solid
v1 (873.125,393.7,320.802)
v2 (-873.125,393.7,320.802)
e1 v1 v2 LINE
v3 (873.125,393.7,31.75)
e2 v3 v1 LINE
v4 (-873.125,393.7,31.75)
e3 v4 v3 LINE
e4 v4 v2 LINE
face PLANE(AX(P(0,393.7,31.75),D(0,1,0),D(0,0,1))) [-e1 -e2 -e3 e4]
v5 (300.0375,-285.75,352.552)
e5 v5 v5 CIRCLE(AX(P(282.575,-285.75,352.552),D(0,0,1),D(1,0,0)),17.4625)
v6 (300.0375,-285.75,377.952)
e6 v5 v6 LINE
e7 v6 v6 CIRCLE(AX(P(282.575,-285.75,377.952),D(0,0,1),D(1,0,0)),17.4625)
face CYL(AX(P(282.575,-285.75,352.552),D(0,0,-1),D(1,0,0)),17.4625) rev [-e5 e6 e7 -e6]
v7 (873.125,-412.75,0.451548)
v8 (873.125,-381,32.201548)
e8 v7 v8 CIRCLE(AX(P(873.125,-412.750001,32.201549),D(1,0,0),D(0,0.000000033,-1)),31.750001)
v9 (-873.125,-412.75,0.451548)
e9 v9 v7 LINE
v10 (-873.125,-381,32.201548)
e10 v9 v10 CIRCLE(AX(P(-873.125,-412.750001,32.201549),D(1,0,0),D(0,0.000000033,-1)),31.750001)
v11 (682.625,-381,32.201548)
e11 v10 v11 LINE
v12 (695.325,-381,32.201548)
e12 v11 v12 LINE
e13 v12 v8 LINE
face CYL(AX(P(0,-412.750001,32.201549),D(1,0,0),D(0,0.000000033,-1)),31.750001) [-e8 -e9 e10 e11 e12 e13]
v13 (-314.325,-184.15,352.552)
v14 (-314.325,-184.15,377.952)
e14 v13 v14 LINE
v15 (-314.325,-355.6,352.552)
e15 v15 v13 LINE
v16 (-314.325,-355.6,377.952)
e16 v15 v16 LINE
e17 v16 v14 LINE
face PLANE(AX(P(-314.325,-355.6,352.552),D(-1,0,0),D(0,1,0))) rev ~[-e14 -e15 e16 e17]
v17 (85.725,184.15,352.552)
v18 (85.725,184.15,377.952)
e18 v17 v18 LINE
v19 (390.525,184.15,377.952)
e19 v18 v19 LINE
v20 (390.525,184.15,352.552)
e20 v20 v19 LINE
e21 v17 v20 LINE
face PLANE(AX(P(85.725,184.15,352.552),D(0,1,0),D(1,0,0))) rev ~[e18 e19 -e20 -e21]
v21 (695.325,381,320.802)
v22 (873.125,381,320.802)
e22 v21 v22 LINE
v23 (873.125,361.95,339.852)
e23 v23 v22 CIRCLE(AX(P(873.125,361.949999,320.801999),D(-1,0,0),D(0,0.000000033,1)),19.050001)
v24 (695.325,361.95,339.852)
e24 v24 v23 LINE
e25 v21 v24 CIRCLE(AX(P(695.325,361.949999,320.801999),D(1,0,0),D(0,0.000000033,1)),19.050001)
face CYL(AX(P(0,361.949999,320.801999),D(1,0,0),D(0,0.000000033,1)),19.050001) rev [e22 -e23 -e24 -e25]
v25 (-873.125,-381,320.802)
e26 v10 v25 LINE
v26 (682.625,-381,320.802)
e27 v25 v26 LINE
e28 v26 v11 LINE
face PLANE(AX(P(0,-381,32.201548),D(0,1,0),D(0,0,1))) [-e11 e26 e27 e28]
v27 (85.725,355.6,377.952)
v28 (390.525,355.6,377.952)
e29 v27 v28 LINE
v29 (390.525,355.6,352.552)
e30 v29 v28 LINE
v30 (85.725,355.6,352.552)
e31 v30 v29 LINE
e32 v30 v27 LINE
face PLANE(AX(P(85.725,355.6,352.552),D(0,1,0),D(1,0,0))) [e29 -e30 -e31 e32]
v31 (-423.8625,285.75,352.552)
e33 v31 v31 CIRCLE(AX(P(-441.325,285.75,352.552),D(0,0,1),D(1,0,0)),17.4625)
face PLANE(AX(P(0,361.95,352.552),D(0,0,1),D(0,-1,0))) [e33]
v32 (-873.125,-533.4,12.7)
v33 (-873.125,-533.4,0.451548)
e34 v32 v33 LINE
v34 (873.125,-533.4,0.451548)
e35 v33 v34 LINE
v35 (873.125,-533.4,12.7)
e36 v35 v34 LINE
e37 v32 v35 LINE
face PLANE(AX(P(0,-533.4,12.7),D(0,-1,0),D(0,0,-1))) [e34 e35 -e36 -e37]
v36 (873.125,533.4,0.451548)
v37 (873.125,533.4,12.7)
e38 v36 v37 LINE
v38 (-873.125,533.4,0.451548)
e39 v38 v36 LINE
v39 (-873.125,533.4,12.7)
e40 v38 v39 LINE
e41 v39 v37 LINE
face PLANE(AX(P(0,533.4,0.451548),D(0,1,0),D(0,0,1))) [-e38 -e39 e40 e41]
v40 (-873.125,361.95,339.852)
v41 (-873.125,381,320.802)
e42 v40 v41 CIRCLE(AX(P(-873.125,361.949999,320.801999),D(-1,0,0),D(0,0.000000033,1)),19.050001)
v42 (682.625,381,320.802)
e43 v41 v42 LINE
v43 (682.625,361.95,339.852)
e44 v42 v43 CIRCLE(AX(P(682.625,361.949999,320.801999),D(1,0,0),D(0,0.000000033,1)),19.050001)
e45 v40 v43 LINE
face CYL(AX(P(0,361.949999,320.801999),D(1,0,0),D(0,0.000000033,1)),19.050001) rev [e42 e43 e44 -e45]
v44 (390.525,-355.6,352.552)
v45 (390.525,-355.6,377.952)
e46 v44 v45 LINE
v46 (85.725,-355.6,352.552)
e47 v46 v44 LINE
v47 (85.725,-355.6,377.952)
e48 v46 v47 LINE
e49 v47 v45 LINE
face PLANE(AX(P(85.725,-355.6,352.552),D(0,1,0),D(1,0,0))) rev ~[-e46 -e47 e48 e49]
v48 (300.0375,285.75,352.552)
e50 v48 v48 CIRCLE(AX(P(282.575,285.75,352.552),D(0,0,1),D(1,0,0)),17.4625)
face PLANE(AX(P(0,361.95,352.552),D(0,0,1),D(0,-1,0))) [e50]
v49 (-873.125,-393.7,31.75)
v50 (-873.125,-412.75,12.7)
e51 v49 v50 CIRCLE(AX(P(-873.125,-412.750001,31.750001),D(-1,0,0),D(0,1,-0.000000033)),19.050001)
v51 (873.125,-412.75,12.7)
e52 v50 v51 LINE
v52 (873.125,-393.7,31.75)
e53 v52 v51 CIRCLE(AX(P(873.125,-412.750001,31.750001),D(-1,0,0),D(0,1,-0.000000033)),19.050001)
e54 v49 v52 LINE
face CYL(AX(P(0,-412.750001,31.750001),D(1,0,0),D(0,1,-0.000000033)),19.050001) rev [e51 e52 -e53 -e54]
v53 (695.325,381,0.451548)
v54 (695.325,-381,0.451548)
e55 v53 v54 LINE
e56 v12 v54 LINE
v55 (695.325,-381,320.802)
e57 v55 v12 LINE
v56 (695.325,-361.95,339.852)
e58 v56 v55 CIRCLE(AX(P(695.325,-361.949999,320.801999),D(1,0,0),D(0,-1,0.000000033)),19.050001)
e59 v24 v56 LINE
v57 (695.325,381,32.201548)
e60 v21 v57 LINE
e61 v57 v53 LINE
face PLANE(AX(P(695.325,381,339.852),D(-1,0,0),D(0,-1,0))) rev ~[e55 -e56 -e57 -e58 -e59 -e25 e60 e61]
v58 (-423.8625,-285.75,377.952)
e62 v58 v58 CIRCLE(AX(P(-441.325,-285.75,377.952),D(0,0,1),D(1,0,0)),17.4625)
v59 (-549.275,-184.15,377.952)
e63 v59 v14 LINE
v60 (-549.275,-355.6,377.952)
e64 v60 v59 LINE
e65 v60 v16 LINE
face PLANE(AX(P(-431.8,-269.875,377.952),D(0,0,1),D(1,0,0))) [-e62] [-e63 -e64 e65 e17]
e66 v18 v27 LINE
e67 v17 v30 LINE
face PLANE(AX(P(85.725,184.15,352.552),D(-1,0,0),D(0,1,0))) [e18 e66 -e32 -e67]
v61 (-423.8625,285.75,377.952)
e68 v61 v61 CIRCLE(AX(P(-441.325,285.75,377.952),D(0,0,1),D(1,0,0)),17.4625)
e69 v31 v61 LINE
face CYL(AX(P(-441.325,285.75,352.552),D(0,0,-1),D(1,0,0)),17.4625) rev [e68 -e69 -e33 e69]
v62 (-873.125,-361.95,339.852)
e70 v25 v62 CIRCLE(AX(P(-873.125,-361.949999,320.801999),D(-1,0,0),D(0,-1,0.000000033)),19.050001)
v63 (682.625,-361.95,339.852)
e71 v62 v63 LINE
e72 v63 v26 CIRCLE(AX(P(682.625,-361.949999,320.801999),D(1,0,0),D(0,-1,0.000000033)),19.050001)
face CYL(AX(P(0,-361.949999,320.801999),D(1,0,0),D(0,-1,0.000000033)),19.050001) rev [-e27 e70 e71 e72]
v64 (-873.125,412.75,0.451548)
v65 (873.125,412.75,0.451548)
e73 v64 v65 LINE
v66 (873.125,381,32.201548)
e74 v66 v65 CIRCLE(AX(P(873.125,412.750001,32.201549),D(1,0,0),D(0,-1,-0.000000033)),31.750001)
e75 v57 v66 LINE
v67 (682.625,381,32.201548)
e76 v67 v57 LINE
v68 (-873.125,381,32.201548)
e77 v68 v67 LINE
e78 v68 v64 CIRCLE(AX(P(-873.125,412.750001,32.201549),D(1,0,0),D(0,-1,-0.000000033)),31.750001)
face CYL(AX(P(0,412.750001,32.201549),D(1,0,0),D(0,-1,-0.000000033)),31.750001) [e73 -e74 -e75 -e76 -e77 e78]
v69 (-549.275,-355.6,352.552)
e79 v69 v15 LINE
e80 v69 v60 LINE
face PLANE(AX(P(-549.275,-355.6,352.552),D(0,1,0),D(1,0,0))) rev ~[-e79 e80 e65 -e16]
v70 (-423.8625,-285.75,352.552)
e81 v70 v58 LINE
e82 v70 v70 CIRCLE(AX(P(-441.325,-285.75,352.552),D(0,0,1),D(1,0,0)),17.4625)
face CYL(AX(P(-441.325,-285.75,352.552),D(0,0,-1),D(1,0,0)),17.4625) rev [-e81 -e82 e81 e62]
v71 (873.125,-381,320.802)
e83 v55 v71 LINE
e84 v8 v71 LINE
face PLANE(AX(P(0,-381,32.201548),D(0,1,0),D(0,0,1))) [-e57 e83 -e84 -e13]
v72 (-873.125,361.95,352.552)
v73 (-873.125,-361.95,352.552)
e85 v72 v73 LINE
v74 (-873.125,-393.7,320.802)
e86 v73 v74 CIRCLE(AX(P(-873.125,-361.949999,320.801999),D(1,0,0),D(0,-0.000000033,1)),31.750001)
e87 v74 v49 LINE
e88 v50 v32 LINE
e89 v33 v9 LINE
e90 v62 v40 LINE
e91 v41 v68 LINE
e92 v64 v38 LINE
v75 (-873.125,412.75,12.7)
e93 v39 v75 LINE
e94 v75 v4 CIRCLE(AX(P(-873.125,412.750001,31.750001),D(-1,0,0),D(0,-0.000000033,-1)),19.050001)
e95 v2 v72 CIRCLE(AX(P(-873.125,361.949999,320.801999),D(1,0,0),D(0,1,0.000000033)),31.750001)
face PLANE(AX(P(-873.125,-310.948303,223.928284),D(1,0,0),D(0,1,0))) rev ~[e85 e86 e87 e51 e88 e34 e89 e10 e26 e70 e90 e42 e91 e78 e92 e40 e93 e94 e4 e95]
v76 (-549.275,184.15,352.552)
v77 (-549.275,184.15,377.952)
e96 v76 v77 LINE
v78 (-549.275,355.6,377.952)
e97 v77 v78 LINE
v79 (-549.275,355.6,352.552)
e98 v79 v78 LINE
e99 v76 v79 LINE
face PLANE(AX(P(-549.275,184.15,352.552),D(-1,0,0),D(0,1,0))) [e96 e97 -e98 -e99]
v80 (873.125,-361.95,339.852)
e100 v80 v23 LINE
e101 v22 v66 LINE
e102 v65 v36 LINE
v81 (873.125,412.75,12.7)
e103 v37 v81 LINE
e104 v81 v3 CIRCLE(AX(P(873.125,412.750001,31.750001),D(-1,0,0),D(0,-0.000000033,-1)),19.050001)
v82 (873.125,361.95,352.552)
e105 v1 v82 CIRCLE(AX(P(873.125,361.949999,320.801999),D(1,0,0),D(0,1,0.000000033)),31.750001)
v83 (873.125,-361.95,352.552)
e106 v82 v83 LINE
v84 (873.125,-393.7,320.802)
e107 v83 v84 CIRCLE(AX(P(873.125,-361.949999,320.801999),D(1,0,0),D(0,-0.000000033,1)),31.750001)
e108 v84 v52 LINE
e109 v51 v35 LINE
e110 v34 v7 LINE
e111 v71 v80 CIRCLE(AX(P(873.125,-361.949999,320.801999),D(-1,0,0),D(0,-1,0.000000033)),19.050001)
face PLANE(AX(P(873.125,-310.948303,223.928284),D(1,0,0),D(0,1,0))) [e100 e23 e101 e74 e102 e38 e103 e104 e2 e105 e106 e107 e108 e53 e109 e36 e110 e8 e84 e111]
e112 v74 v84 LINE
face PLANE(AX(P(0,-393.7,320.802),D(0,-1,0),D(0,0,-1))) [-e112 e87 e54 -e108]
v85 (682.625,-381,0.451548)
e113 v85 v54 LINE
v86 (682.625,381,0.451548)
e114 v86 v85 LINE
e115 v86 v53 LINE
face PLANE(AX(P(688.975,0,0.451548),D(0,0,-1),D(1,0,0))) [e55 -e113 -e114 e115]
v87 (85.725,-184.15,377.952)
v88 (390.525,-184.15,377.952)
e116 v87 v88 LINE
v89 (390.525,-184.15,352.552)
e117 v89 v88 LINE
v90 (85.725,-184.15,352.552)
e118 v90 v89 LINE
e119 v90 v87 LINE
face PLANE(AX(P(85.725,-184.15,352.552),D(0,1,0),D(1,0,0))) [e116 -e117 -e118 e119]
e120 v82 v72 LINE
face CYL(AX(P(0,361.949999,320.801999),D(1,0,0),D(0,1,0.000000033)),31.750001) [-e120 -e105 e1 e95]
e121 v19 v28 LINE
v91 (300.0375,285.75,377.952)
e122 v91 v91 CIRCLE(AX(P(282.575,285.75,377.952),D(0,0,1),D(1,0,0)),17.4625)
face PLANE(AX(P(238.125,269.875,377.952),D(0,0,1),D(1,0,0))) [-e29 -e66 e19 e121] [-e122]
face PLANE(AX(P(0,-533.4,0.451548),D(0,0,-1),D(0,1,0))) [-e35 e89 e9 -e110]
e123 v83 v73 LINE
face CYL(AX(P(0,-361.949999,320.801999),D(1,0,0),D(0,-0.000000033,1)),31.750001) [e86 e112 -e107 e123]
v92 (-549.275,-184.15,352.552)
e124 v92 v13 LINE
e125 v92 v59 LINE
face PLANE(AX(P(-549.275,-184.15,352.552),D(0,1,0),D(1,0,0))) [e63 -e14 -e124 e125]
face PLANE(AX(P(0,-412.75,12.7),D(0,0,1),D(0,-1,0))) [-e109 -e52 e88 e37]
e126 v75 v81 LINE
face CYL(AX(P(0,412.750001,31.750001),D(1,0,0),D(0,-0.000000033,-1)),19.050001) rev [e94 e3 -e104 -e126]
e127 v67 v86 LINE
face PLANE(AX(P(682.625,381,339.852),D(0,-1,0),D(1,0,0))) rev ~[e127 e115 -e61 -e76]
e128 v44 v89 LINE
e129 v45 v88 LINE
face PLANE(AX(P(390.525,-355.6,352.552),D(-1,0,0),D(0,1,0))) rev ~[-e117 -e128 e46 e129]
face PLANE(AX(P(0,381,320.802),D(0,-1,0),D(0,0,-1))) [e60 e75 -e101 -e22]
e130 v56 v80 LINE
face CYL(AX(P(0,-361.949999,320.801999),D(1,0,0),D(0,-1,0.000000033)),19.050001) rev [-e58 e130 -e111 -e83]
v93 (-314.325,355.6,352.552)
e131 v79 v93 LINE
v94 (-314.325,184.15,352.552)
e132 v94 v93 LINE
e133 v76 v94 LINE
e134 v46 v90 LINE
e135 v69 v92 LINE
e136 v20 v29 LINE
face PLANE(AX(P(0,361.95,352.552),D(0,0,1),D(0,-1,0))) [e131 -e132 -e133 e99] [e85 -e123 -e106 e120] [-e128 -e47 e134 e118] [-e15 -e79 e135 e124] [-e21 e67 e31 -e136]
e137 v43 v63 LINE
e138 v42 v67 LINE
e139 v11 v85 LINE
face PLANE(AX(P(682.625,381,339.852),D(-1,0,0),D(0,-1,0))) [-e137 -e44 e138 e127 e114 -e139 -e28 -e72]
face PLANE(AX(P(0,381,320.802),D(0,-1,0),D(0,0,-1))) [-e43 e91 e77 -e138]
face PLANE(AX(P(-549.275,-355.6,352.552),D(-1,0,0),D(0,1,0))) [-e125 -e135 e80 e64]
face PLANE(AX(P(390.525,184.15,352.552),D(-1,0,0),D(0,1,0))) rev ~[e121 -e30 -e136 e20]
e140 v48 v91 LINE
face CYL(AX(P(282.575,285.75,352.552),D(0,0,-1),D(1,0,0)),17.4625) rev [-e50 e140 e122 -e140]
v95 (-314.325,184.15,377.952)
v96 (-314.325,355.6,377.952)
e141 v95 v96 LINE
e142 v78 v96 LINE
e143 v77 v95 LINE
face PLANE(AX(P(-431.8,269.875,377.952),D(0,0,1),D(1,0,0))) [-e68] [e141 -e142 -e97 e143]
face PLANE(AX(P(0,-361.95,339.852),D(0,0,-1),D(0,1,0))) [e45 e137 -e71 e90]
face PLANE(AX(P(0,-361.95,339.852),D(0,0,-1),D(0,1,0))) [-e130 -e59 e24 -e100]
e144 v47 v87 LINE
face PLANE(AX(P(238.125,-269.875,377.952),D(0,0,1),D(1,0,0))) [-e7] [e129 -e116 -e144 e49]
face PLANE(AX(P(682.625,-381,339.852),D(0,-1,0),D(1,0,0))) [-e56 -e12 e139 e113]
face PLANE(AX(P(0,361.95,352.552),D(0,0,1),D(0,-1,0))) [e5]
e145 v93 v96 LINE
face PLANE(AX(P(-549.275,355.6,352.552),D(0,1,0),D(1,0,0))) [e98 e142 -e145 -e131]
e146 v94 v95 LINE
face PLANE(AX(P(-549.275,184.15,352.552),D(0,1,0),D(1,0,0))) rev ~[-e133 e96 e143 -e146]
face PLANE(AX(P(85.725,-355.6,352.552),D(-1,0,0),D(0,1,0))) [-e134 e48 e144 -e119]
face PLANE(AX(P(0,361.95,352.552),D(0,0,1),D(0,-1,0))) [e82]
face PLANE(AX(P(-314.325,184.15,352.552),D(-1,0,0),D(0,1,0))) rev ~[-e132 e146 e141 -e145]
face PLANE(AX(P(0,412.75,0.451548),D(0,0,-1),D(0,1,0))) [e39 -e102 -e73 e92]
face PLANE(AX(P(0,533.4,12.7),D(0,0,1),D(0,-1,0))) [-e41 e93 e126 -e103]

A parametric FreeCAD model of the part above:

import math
import FreeCAD as App
import Part
import Sketcher
Q = App.Units.Quantity


def add_polygon(sketch, points):
    """Adds a closed chain of lines whose ends are joined by coincident constraints."""
    first, n = sketch.GeometryCount, len(points)
    for a, b in zip(points, points[1:] + points[:1]):
        sketch.addGeometry(Part.LineSegment(App.Vector(*a, 0), App.Vector(*b, 0)), False)
    for i in range(n):
        sketch.addConstraint(Sketcher.Constraint("Coincident", first + i, 2, first + (i + 1) % n, 1))

doc = App.newDocument("Part")
body = doc.addObject("PartDesign::Body", "Body")

# Sketch on YZ plane
sketch1 = body.newObject("Sketcher::SketchObject", "Sketch")
sketch1.AttachmentSupport = (doc.getObject("YZ_Plane"), [""])
sketch1.MapMode = "FlatFace"
sketch1.addGeometry(Part.ArcOfCircle(Part.Circle(App.Vector(-362, 321, 0), App.Vector(0, 0, 1), 32), math.radians(90), math.radians(180)), False)
sketch1.addGeometry(Part.LineSegment(App.Vector(-394, 321, 0), App.Vector(-394, 32, 0)), False)
sketch1.addGeometry(Part.ArcOfCircle(Part.Circle(App.Vector(-413, 32, 0), App.Vector(0, 0, 1), 19), math.radians(-90), math.radians(0)), False)
sketch1.addGeometry(Part.LineSegment(App.Vector(-413, 13, 0), App.Vector(-533, 13, 0)), False)
sketch1.addGeometry(Part.LineSegment(App.Vector(-533, 13, 0), App.Vector(-533, 0, 0)), False)
sketch1.addGeometry(Part.LineSegment(App.Vector(-533, 0, 0), App.Vector(-413, 0, 0)), False)
sketch1.addGeometry(Part.ArcOfCircle(Part.Circle(App.Vector(-413, 32, 0), App.Vector(0, 0, 1), 32), math.radians(-90), math.radians(0)), False)
sketch1.addGeometry(Part.LineSegment(App.Vector(-381, 32, 0), App.Vector(-381, 321, 0)), False)
sketch1.addGeometry(Part.ArcOfCircle(Part.Circle(App.Vector(-362, 321, 0), App.Vector(0, 0, 1), 19), math.radians(90), math.radians(180)), False)
sketch1.addGeometry(Part.LineSegment(App.Vector(-362, 340, 0), App.Vector(362, 340, 0)), False)
sketch1.addGeometry(Part.ArcOfCircle(Part.Circle(App.Vector(362, 321, 0), App.Vector(0, 0, 1), 19), math.radians(0), math.radians(90)), False)
sketch1.addGeometry(Part.LineSegment(App.Vector(381, 321, 0), App.Vector(381, 32, 0)), False)
sketch1.addGeometry(Part.ArcOfCircle(Part.Circle(App.Vector(413, 32, 0), App.Vector(0, 0, 1), 32), math.radians(-180), math.radians(-90)), False)
sketch1.addGeometry(Part.LineSegment(App.Vector(413, 0, 0), App.Vector(533, 0, 0)), False)
sketch1.addGeometry(Part.LineSegment(App.Vector(533, 0, 0), App.Vector(533, 13, 0)), False)
sketch1.addGeometry(Part.LineSegment(App.Vector(533, 13, 0), App.Vector(413, 13, 0)), False)
sketch1.addGeometry(Part.ArcOfCircle(Part.Circle(App.Vector(413, 32, 0), App.Vector(0, 0, 1), 19), math.radians(-180), math.radians(-90)), False)
sketch1.addGeometry(Part.LineSegment(App.Vector(394, 32, 0), App.Vector(394, 321, 0)), False)
sketch1.addGeometry(Part.ArcOfCircle(Part.Circle(App.Vector(362, 321, 0), App.Vector(0, 0, 1), 32), math.radians(0), math.radians(90)), False)
sketch1.addGeometry(Part.LineSegment(App.Vector(362, 353, 0), App.Vector(-362, 353, 0)), False)
sketch1.addConstraint(Sketcher.Constraint("Tangent", 0, 2, 1, 1))
sketch1.addConstraint(Sketcher.Constraint("Tangent", 1, 2, 2, 2))
sketch1.addConstraint(Sketcher.Constraint("Tangent", 2, 1, 3, 1))
sketch1.addConstraint(Sketcher.Constraint("Coincident", 3, 2, 4, 1))
sketch1.addConstraint(Sketcher.Constraint("Coincident", 4, 2, 5, 1))
sketch1.addConstraint(Sketcher.Constraint("Tangent", 5, 2, 6, 1))
sketch1.addConstraint(Sketcher.Constraint("Tangent", 6, 2, 7, 1))
sketch1.addConstraint(Sketcher.Constraint("Tangent", 7, 2, 8, 2))
sketch1.addConstraint(Sketcher.Constraint("Tangent", 8, 1, 9, 1))
sketch1.addConstraint(Sketcher.Constraint("Tangent", 9, 2, 10, 2))
sketch1.addConstraint(Sketcher.Constraint("Tangent", 10, 1, 11, 1))
sketch1.addConstraint(Sketcher.Constraint("Tangent", 11, 2, 12, 1))
sketch1.addConstraint(Sketcher.Constraint("Tangent", 12, 2, 13, 1))
sketch1.addConstraint(Sketcher.Constraint("Coincident", 13, 2, 14, 1))
sketch1.addConstraint(Sketcher.Constraint("Coincident", 14, 2, 15, 1))
sketch1.addConstraint(Sketcher.Constraint("Tangent", 15, 2, 16, 2))
sketch1.addConstraint(Sketcher.Constraint("Tangent", 16, 1, 17, 1))
sketch1.addConstraint(Sketcher.Constraint("Tangent", 17, 2, 18, 1))
sketch1.addConstraint(Sketcher.Constraint("Tangent", 18, 2, 19, 1))
sketch1.addConstraint(Sketcher.Constraint("Tangent", 19, 2, 0, 1))
sketch1.addConstraint(Sketcher.Constraint("Vertical", 1))
sketch1.addConstraint(Sketcher.Constraint("Horizontal", 3))
sketch1.addConstraint(Sketcher.Constraint("Vertical", 4))
sketch1.addConstraint(Sketcher.Constraint("Horizontal", 5))
sketch1.addConstraint(Sketcher.Constraint("Vertical", 7))
sketch1.addConstraint(Sketcher.Constraint("Horizontal", 9))
sketch1.addConstraint(Sketcher.Constraint("Vertical", 11))
sketch1.addConstraint(Sketcher.Constraint("Horizontal", 13))
sketch1.addConstraint(Sketcher.Constraint("Vertical", 14))
sketch1.addConstraint(Sketcher.Constraint("Horizontal", 15))
sketch1.addConstraint(Sketcher.Constraint("Vertical", 17))
sketch1.addConstraint(Sketcher.Constraint("Horizontal", 19))
sketch1.addConstraint(Sketcher.Constraint("Coincident", 8, 3, 0, 3))
sketch1.addConstraint(Sketcher.Constraint("Coincident", 18, 3, 10, 3))
sketch1.addConstraint(Sketcher.Constraint("Equal", 0, 6))
sketch1.addConstraint(Sketcher.Constraint("Equal", 2, 8))
sketch1.addConstraint(Sketcher.Constraint("Equal", 8, 10))
sketch1.addConstraint(Sketcher.Constraint("Equal", 6, 12))
sketch1.addConstraint(Sketcher.Constraint("Equal", 10, 16))
sketch1.addConstraint(Sketcher.Constraint("Symmetric", 6, 3, 12, 3, -2))
sketch1.addConstraint(Sketcher.Constraint("Symmetric", 3, 2, 14, 2, -2))
sketch1.addConstraint(Sketcher.Constraint("Radius", 0, Q("1.25 in")))
sketch1.addConstraint(Sketcher.Constraint("Radius", 2, Q("0.75 in")))
sketch1.addConstraint(Sketcher.Constraint("DistanceX", 9, 1, 9, 2, Q("28.5 in")))
sketch1.addConstraint(Sketcher.Constraint("DistanceX", 3, 2, -1, 1, Q("21 in")))
sketch1.addConstraint(Sketcher.Constraint("DistanceY", 1, 2, 1, 1, Q("11.38 in")))
sketch1.addConstraint(Sketcher.Constraint("DistanceY", -1, 1, 2, 1, Q("0.5 in")))
sketch1.addConstraint(Sketcher.Constraint("DistanceY", 4, 2, 4, 1, 12.248452))
pad1 = body.newObject("PartDesign::Pad", "Pad")
pad1.Profile = sketch1
pad1.Length = Q("68.75 in")
pad1.Midplane = True

# Sketch on XY plane
sketch2 = body.newObject("Sketcher::SketchObject", "Sketch001")
sketch2.AttachmentSupport = (doc.getObject("XY_Plane"), [""])
sketch2.MapMode = "FlatFace"
sketch2.AttachmentOffset = App.Placement(App.Vector(0, 0, 13.38 * 25.4), App.Rotation())
add_polygon(sketch2, [(683, -381), (683, 381), (695, 381), (695, -381)])  # lines 0-3
sketch2.addConstraint(Sketcher.Constraint("Vertical", 0))
sketch2.addConstraint(Sketcher.Constraint("Horizontal", 1))
sketch2.addConstraint(Sketcher.Constraint("Vertical", 2))
sketch2.addConstraint(Sketcher.Constraint("Horizontal", 3))
sketch2.addConstraint(Sketcher.Constraint("DistanceY", 0, 1, 0, 2, Q("30 in")))
sketch2.addConstraint(Sketcher.Constraint("DistanceX", 1, 1, 1, 2, Q("0.5 in")))
sketch2.addConstraint(Sketcher.Constraint("DistanceY", -1, 1, 0, 2, Q("15 in")))
sketch2.addConstraint(Sketcher.Constraint("DistanceX", -1, 1, 0, 2, Q("26.875 in")))
pad2 = body.newObject("PartDesign::Pad", "Pad001")
pad2.Profile = sketch2
pad2.Length = 339.400452
pad2.Reversed = True

# Sketch on XY plane
sketch3 = body.newObject("Sketcher::SketchObject", "Sketch002")
sketch3.AttachmentSupport = (doc.getObject("XY_Plane"), [""])
sketch3.MapMode = "FlatFace"
sketch3.AttachmentOffset = App.Placement(App.Vector(0, 0, 13.88 * 25.4), App.Rotation())
add_polygon(sketch3, [(-549, 356), (-549, 184), (-314, 184), (-314, 356)])  # lines 0-3
sketch3.addGeometry(Part.Circle(App.Vector(-441, 286, 0), App.Vector(0, 0, 1), 17), False)  # 4
add_polygon(sketch3, [(86, 356), (86, 184), (391, 184), (391, 356)])  # lines 5-8
sketch3.addGeometry(Part.Circle(App.Vector(283, 286, 0), App.Vector(0, 0, 1), 17), False)  # 9
add_polygon(sketch3, [(86, -184), (86, -356), (391, -356), (391, -184)])  # lines 10-13
sketch3.addGeometry(Part.Circle(App.Vector(283, -286, 0), App.Vector(0, 0, 1), 17), False)  # 14
add_polygon(sketch3, [(-549, -184), (-549, -356), (-314, -356), (-314, -184)])  # lines 15-18
sketch3.addGeometry(Part.Circle(App.Vector(-441, -286, 0), App.Vector(0, 0, 1), 17), False)  # 19
sketch3.addConstraint(Sketcher.Constraint("Vertical", 0))
sketch3.addConstraint(Sketcher.Constraint("Horizontal", 1))
sketch3.addConstraint(Sketcher.Constraint("Vertical", 2))
sketch3.addConstraint(Sketcher.Constraint("Horizontal", 3))
sketch3.addConstraint(Sketcher.Constraint("Vertical", 5))
sketch3.addConstraint(Sketcher.Constraint("Horizontal", 6))
sketch3.addConstraint(Sketcher.Constraint("Vertical", 7))
sketch3.addConstraint(Sketcher.Constraint("Horizontal", 8))
sketch3.addConstraint(Sketcher.Constraint("Vertical", 10))
sketch3.addConstraint(Sketcher.Constraint("Horizontal", 11))
sketch3.addConstraint(Sketcher.Constraint("Vertical", 12))
sketch3.addConstraint(Sketcher.Constraint("Horizontal", 13))
sketch3.addConstraint(Sketcher.Constraint("Vertical", 15))
sketch3.addConstraint(Sketcher.Constraint("Horizontal", 16))
sketch3.addConstraint(Sketcher.Constraint("Vertical", 17))
sketch3.addConstraint(Sketcher.Constraint("Horizontal", 18))
sketch3.addConstraint(Sketcher.Constraint("Equal", 4, 9))
sketch3.addConstraint(Sketcher.Constraint("Equal", 9, 14))
sketch3.addConstraint(Sketcher.Constraint("Equal", 14, 19))
sketch3.addConstraint(Sketcher.Constraint("Symmetric", 9, 3, 14, 3, -1))
sketch3.addConstraint(Sketcher.Constraint("Symmetric", 4, 3, 19, 3, -1))
sketch3.addConstraint(Sketcher.Constraint("Symmetric", 8, 2, 10, 2, -1))
sketch3.addConstraint(Sketcher.Constraint("Symmetric", 6, 2, 12, 2, -1))
sketch3.addConstraint(Sketcher.Constraint("Symmetric", 3, 2, 15, 2, -1))
sketch3.addConstraint(Sketcher.Constraint("Symmetric", 1, 2, 17, 2, -1))
sketch3.addConstraint(Sketcher.Constraint("Horizontal", 4, 3, 9, 3))
sketch3.addConstraint(Sketcher.Constraint("Horizontal", 1, 2, 5, 2))
sketch3.addConstraint(Sketcher.Constraint("Horizontal", 3, 2, 7, 2))
sketch3.addConstraint(Sketcher.Constraint("DistanceX", 6, 1, 6, 2, Q("12 in")))
sketch3.addConstraint(Sketcher.Constraint("Diameter", 4, Q("1.375 in")))
sketch3.addConstraint(Sketcher.Constraint("DistanceY", -1, 1, 2, 2, Q("14 in")))
sketch3.addConstraint(Sketcher.Constraint("DistanceY", 0, 2, 4, 3, Q("4 in")))
sketch3.addConstraint(Sketcher.Constraint("DistanceX", 4, 3, 1, 2, Q("5 in")))
sketch3.addConstraint(Sketcher.Constraint("DistanceX", 15, 2, 10, 2, Q("25 in")))
sketch3.addConstraint(Sketcher.Constraint("DistanceX", 1, 1, 1, 2, Q("9.25 in")))
sketch3.addConstraint(Sketcher.Constraint("DistanceY", 0, 2, 0, 1, Q("6.75 in")))
sketch3.addConstraint(Sketcher.Constraint("DistanceX", 4, 3, 9, 3, Q("28.5 in")))
sketch3.addConstraint(Sketcher.Constraint("DistanceX", 4, 3, -1, 1, Q("17.375 in")))
pad3 = body.newObject("PartDesign::Pad", "Pad002")
pad3.Profile = sketch3
pad3.Length = Q("1 in")

doc.recompute()
